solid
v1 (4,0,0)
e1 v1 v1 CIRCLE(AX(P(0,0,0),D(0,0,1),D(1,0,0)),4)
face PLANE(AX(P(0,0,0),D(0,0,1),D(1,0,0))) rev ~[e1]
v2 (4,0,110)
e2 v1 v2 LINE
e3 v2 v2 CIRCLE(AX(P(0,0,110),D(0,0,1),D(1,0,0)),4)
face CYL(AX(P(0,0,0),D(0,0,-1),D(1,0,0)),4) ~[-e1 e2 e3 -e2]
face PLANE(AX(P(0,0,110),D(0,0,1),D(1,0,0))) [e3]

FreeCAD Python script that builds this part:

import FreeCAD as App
import Part
import Sketcher
Q = App.Units.Quantity

doc = App.newDocument("Part")
params = doc.addObject("Spreadsheet::Sheet", "Params")
for row, (alias, value) in enumerate([
    ("sketch1_diameter", "8 mm"),
    ("pad1_length", "110 mm"),
], start=1):
    params.set(f"A{row}", alias)
    params.set(f"B{row}", "=" + value)
    params.setAlias(f"B{row}", alias)

body = doc.addObject("PartDesign::Body", "Body")

sketch1 = doc.addObject("Sketcher::SketchObject", "Sketch")
body.addObject(sketch1)
sketch1.AttachmentSupport = (doc.XY_Plane, [""])
sketch1.MapMode = "FlatFace"
sketch1.addGeometry(Part.Circle(App.Vector(0, 0, 0), App.Vector(0, 0, 1), 4), False)
sketch1.addConstraint(Sketcher.Constraint("Coincident", 0, 3, -1, 1))
sketch1.addConstraint(Sketcher.Constraint("Diameter", 0, Q("8 mm")))
sketch1.setExpression("Constraints[1]", "Params.sketch1_diameter")
pad1 = doc.addObject("PartDesign::Pad", "Pad")
body.addObject(pad1)
pad1.Profile = sketch1
pad1.setExpression("Length", "Params.pad1_length")

doc.recompute()
